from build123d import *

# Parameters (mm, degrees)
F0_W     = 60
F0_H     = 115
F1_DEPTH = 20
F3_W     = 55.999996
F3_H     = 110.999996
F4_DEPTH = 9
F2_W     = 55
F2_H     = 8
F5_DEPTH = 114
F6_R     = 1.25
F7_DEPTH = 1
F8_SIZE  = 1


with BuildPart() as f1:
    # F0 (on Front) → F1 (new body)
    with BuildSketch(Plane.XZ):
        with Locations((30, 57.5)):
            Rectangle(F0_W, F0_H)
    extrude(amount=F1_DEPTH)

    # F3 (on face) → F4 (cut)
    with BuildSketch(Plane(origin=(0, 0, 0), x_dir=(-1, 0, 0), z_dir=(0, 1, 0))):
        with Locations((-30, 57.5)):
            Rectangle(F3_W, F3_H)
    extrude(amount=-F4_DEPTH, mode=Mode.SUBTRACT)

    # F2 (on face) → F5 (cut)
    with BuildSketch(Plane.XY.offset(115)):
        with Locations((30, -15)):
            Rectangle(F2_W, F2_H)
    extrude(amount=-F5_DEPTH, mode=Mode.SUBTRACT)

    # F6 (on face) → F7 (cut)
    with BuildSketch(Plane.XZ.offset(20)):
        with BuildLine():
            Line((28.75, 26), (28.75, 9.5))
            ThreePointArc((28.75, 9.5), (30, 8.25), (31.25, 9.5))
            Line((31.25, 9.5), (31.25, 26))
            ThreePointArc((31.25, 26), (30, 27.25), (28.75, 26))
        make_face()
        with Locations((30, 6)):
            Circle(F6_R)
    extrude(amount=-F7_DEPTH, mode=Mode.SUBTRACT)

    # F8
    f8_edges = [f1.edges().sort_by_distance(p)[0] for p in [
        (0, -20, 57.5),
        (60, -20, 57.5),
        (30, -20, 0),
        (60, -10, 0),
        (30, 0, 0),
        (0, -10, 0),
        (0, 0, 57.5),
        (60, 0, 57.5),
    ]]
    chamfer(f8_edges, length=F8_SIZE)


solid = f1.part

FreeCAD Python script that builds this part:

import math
import FreeCAD as App
import Part
import Sketcher
Q = App.Units.Quantity


def edges_at(feature, points):
    """Names of the edges that pass closest to the given points."""
    edges = feature.Shape.Edges
    near = lambda p: min(range(len(edges)), key=lambda i: edges[i].distToShape(Part.Vertex(*p))[0])
    return sorted({f"Edge{near(p) + 1}" for p in points})


def add_polygon(sketch, points):
    """Adds a closed chain of lines whose ends are joined by coincident constraints."""
    first, n = sketch.GeometryCount, len(points)
    for a, b in zip(points, points[1:] + points[:1]):
        sketch.addGeometry(Part.LineSegment(App.Vector(*a, 0), App.Vector(*b, 0)), False)
    for i in range(n):
        sketch.addConstraint(Sketcher.Constraint("Coincident", first + i, 2, first + (i + 1) % n, 1))

doc = App.newDocument("Part")
body = doc.addObject("PartDesign::Body", "Body")

# Sketch on XZ plane
sketch1 = body.newObject("Sketcher::SketchObject", "Sketch")
sketch1.AttachmentSupport = (doc.getObject("XZ_Plane"), [""])
sketch1.MapMode = "FlatFace"
add_polygon(sketch1, [(0, 115), (0, 0), (60, 0), (60, 115)])  # lines 0-3
sketch1.addConstraint([
    Sketcher.Constraint("Vertical", 0),
    Sketcher.Constraint("Horizontal", 1),
    Sketcher.Constraint("Vertical", 2),
    Sketcher.Constraint("Horizontal", 3),
    Sketcher.Constraint("Coincident", 0, 2, -1, 1),
    Sketcher.Constraint("DistanceX", 1, 1, 1, 2, Q("60 mm")),
    Sketcher.Constraint("DistanceY", 0, 2, 0, 1, Q("115 mm")),
])
pad1 = body.newObject("PartDesign::Pad", "Pad")
pad1.Profile = sketch1
pad1.Length = 20

# Sketch on XZ plane
sketch2 = body.newObject("Sketcher::SketchObject", "Sketch001")
sketch2.AttachmentSupport = (doc.getObject("XZ_Plane"), [""])
sketch2.MapMode = "FlatFace"
add_polygon(sketch2, [(58, 113), (58, 2), (2, 2), (2, 113)])  # lines 0-3
sketch2.addConstraint([
    Sketcher.Constraint("Vertical", 0),
    Sketcher.Constraint("Horizontal", 1),
    Sketcher.Constraint("Vertical", 2),
    Sketcher.Constraint("Horizontal", 3),
    Sketcher.Constraint("DistanceY", -1, 1, 0, 2, Q("2.000002 mm")),
    Sketcher.Constraint("DistanceX", -1, 1, 1, 2, Q("2.000002 mm")),
    Sketcher.Constraint("DistanceY", -1, 1, 2, 2, Q("112.999998 mm")),
    Sketcher.Constraint("DistanceX", 1, 2, 1, 1, Q("55.999996 mm")),
])
pocket1 = body.newObject("PartDesign::Pocket", "Pocket")
pocket1.Profile = sketch2
pocket1.Length = 9
pocket1.Reversed = True

# Sketch on XY plane
sketch3 = body.newObject("Sketcher::SketchObject", "Sketch002")
sketch3.AttachmentSupport = (doc.getObject("XY_Plane"), [""])
sketch3.MapMode = "FlatFace"
sketch3.AttachmentOffset = App.Placement(App.Vector(0, 0, 115), App.Rotation())
add_polygon(sketch3, [(2, -11), (2, -19), (58, -19), (58, -11)])  # lines 0-3
sketch3.addConstraint([
    Sketcher.Constraint("Vertical", 0),
    Sketcher.Constraint("Horizontal", 1),
    Sketcher.Constraint("Vertical", 2),
    Sketcher.Constraint("Horizontal", 3),
    Sketcher.Constraint("DistanceX", 1, 1, 1, 2, Q("55 mm")),
    Sketcher.Constraint("DistanceY", 0, 2, 0, 1, Q("8 mm")),
    Sketcher.Constraint("DistanceY", 0, 2, -1, 1, Q("19 mm")),
    Sketcher.Constraint("DistanceX", -1, 1, 0, 2, Q("2.5 mm")),
])
pocket2 = body.newObject("PartDesign::Pocket", "Pocket001")
pocket2.Profile = sketch3
pocket2.Length = 114

# Sketch on XZ plane
sketch4 = body.newObject("Sketcher::SketchObject", "Sketch003")
sketch4.AttachmentSupport = (doc.getObject("XZ_Plane"), [""])
sketch4.MapMode = "FlatFace"
sketch4.AttachmentOffset = App.Placement(App.Vector(0, 0, 20), App.Rotation())
sketch4.addGeometry([
    Part.LineSegment(App.Vector(28.8, 26, 0), App.Vector(28.8, 9.5, 0)),  # 0
    Part.ArcOfCircle(Part.Circle(App.Vector(30, 9.5, 0), App.Vector(0, 0, 1), 1.2), math.radians(180), math.radians(360)),  # 1
    Part.LineSegment(App.Vector(31.2, 9.5, 0), App.Vector(31.2, 26, 0)),  # 2
    Part.ArcOfCircle(Part.Circle(App.Vector(30, 26, 0), App.Vector(0, 0, 1), 1.2), math.radians(0), math.radians(180)),  # 3
    Part.Circle(App.Vector(30, 6, 0), App.Vector(0, 0, 1), 1.2),  # 4
], False)
sketch4.addConstraint([
    Sketcher.Constraint("Tangent", 0, 2, 1, 1),
    Sketcher.Constraint("Tangent", 1, 2, 2, 1),
    Sketcher.Constraint("Tangent", 2, 2, 3, 1),
    Sketcher.Constraint("Tangent", 3, 2, 0, 1),
    Sketcher.Constraint("Vertical", 0),
    Sketcher.Constraint("Vertical", 2),
    Sketcher.Constraint("Equal", 3, 4),
    Sketcher.Constraint("Vertical", 3, 3, 4, 3),
    Sketcher.Constraint("Diameter", 4, Q("2.5 mm")),
    Sketcher.Constraint("DistanceY", 0, 2, 0, 1, Q("16.5 mm")),
    Sketcher.Constraint("DistanceX", -1, 1, 1, 3, Q("30 mm")),
    Sketcher.Constraint("DistanceY", -1, 1, 3, 3, Q("26 mm")),
    Sketcher.Constraint("DistanceY", -1, 1, 4, 3, Q("6 mm")),
])
pocket3 = body.newObject("PartDesign::Pocket", "Pocket002")
pocket3.Profile = sketch4
pocket3.Length = 1
doc.recompute()

chamfer = body.newObject("PartDesign::Chamfer", "Chamfer")
chamfer.Base = (pocket3, edges_at(pocket3, [
    (0, -20, 57.5),
    (60, -20, 57.5),
    (30, -20, 0),
    (60, -10, 0),
    (30, 0, 0),
    (0, -10, 0),
    (0, 0, 57.5),
    (60, 0, 57.5),
]))
chamfer.Size = 1

doc.recompute()
